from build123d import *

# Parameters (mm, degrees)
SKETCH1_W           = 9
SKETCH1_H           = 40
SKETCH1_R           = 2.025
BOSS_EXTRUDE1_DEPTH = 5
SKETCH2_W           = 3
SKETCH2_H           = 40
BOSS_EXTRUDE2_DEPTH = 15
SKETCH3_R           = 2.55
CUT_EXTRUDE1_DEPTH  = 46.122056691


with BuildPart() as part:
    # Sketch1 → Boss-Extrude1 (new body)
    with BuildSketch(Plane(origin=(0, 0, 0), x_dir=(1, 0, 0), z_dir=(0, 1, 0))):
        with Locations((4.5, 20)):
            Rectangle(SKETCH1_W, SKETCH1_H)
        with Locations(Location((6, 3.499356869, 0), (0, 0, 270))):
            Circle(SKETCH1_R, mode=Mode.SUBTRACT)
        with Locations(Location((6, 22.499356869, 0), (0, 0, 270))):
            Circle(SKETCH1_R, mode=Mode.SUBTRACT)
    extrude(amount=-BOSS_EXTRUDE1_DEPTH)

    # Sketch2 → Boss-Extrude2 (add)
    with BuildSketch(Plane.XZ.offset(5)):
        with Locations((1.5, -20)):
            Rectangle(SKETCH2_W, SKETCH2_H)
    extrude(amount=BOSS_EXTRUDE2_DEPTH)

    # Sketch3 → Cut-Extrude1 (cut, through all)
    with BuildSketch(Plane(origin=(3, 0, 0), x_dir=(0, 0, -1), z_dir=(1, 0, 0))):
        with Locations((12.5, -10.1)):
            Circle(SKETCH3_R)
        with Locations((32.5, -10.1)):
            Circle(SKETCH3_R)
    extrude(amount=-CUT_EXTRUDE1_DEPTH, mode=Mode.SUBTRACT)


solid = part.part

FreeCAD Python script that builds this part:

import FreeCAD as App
import Part
import Sketcher
from FreeCAD import Vector
Q = App.Units.Quantity

doc = App.newDocument("Part")
body = doc.addObject("PartDesign::Body", "Body")

sketch1 = body.newObject("Sketcher::SketchObject", "Sketch")
sketch1.AttachmentSupport = (doc.getObject("XZ_Plane"), [""])
sketch1.MapMode = "FlatFace"
sketch1.addGeometry([
    Part.LineSegment(Vector(0, -40, 0), Vector(0, 0, 0)),
    Part.LineSegment(Vector(0, 0, 0), Vector(9, 0, 0)),
    Part.LineSegment(Vector(9, 0, 0), Vector(9, -40, 0)),
    Part.LineSegment(Vector(9, -40, 0), Vector(0, -40, 0)),
    Part.Circle(Vector(6, -3.499357, 0), Vector(0, 0, 1), 2.025),
    Part.Circle(Vector(6, -22.499357, 0), Vector(0, 0, 1), 2.025),
], False)
sketch1.addConstraint([
    Sketcher.Constraint("Coincident", 0, 2, 1, 1),
    Sketcher.Constraint("Coincident", 1, 2, 2, 1),
    Sketcher.Constraint("Coincident", 2, 2, 3, 1),
    Sketcher.Constraint("Coincident", 3, 2, 0, 1),
    Sketcher.Constraint("Vertical", 0),
    Sketcher.Constraint("Horizontal", 1),
    Sketcher.Constraint("Vertical", 2),
    Sketcher.Constraint("Horizontal", 3),
    Sketcher.Constraint("Coincident", 0, 2, -1, 1),
    Sketcher.Constraint("Equal", 4, 5),
    Sketcher.Constraint("Vertical", 4, 3, 5, 3),
    Sketcher.Constraint("Diameter", 4, Q("4.05 mm")),
    Sketcher.Constraint("DistanceX", 1, 1, 1, 2, Q("9 mm")),
    Sketcher.Constraint("DistanceY", 0, 1, 0, 2, Q("40 mm")),
    Sketcher.Constraint("DistanceX", -1, 1, 4, 3, Q("6 mm")),
    Sketcher.Constraint("DistanceY", 5, 3, 4, 3, Q("19 mm")),
    Sketcher.Constraint("DistanceY", 4, 3, -1, 1, Q("3.499357 mm")),
])
pad1 = body.newObject("PartDesign::Pad", "Pad")
pad1.Profile = sketch1
pad1.Length = 5

sketch2 = body.newObject("Sketcher::SketchObject", "Sketch001")
sketch2.AttachmentSupport = (doc.getObject("XZ_Plane"), [""])
sketch2.MapMode = "FlatFace"
sketch2.AttachmentOffset = App.Placement(Vector(0, 0, 5), App.Rotation())
sketch2.addGeometry([
    Part.LineSegment(Vector(0, 0, 0), Vector(0, -40, 0)),
    Part.LineSegment(Vector(0, -40, 0), Vector(3, -40, 0)),
    Part.LineSegment(Vector(3, -40, 0), Vector(3, 0, 0)),
    Part.LineSegment(Vector(3, 0, 0), Vector(0, 0, 0)),
], False)
sketch2.addConstraint([
    Sketcher.Constraint("Coincident", 0, 2, 1, 1),
    Sketcher.Constraint("Coincident", 1, 2, 2, 1),
    Sketcher.Constraint("Coincident", 2, 2, 3, 1),
    Sketcher.Constraint("Coincident", 3, 2, 0, 1),
    Sketcher.Constraint("Vertical", 0),
    Sketcher.Constraint("Horizontal", 1),
    Sketcher.Constraint("Vertical", 2),
    Sketcher.Constraint("Horizontal", 3),
    Sketcher.Constraint("Coincident", 3, 2, -1, 1),
    Sketcher.Constraint("DistanceX", 1, 1, 1, 2, Q("3 mm")),
    Sketcher.Constraint("DistanceY", 0, 2, 0, 1, Q("40 mm")),
])
pad2 = body.newObject("PartDesign::Pad", "Pad001")
pad2.Profile = sketch2
pad2.Length = 15

sketch3 = body.newObject("Sketcher::SketchObject", "Sketch002")
sketch3.AttachmentSupport = (doc.getObject("YZ_Plane"), [""])
sketch3.MapMode = "FlatFace"
sketch3.AttachmentOffset = App.Placement(Vector(0, 0, 3), App.Rotation())
sketch3.addGeometry([
    Part.Circle(Vector(-10.1, -12.5, 0), Vector(0, 0, 1), 2.55),
    Part.Circle(Vector(-10.1, -32.5, 0), Vector(0, 0, 1), 2.55),
], False)
sketch3.addConstraint([
    Sketcher.Constraint("Equal", 0, 1),
    Sketcher.Constraint("Vertical", 0, 3, 1, 3),
    Sketcher.Constraint("Diameter", 0, Q("5.1 mm")),
    Sketcher.Constraint("DistanceY", 1, 3, 0, 3, Q("20 mm")),
    Sketcher.Constraint("DistanceX", 0, 3, -1, 1, Q("10.1 mm")),
    Sketcher.Constraint("DistanceY", 0, 3, -1, 1, Q("12.5 mm")),
])
pocket1 = body.newObject("PartDesign::Pocket", "Pocket")
pocket1.Profile = sketch3
pocket1.Type = "ThroughAll"

doc.recompute()
